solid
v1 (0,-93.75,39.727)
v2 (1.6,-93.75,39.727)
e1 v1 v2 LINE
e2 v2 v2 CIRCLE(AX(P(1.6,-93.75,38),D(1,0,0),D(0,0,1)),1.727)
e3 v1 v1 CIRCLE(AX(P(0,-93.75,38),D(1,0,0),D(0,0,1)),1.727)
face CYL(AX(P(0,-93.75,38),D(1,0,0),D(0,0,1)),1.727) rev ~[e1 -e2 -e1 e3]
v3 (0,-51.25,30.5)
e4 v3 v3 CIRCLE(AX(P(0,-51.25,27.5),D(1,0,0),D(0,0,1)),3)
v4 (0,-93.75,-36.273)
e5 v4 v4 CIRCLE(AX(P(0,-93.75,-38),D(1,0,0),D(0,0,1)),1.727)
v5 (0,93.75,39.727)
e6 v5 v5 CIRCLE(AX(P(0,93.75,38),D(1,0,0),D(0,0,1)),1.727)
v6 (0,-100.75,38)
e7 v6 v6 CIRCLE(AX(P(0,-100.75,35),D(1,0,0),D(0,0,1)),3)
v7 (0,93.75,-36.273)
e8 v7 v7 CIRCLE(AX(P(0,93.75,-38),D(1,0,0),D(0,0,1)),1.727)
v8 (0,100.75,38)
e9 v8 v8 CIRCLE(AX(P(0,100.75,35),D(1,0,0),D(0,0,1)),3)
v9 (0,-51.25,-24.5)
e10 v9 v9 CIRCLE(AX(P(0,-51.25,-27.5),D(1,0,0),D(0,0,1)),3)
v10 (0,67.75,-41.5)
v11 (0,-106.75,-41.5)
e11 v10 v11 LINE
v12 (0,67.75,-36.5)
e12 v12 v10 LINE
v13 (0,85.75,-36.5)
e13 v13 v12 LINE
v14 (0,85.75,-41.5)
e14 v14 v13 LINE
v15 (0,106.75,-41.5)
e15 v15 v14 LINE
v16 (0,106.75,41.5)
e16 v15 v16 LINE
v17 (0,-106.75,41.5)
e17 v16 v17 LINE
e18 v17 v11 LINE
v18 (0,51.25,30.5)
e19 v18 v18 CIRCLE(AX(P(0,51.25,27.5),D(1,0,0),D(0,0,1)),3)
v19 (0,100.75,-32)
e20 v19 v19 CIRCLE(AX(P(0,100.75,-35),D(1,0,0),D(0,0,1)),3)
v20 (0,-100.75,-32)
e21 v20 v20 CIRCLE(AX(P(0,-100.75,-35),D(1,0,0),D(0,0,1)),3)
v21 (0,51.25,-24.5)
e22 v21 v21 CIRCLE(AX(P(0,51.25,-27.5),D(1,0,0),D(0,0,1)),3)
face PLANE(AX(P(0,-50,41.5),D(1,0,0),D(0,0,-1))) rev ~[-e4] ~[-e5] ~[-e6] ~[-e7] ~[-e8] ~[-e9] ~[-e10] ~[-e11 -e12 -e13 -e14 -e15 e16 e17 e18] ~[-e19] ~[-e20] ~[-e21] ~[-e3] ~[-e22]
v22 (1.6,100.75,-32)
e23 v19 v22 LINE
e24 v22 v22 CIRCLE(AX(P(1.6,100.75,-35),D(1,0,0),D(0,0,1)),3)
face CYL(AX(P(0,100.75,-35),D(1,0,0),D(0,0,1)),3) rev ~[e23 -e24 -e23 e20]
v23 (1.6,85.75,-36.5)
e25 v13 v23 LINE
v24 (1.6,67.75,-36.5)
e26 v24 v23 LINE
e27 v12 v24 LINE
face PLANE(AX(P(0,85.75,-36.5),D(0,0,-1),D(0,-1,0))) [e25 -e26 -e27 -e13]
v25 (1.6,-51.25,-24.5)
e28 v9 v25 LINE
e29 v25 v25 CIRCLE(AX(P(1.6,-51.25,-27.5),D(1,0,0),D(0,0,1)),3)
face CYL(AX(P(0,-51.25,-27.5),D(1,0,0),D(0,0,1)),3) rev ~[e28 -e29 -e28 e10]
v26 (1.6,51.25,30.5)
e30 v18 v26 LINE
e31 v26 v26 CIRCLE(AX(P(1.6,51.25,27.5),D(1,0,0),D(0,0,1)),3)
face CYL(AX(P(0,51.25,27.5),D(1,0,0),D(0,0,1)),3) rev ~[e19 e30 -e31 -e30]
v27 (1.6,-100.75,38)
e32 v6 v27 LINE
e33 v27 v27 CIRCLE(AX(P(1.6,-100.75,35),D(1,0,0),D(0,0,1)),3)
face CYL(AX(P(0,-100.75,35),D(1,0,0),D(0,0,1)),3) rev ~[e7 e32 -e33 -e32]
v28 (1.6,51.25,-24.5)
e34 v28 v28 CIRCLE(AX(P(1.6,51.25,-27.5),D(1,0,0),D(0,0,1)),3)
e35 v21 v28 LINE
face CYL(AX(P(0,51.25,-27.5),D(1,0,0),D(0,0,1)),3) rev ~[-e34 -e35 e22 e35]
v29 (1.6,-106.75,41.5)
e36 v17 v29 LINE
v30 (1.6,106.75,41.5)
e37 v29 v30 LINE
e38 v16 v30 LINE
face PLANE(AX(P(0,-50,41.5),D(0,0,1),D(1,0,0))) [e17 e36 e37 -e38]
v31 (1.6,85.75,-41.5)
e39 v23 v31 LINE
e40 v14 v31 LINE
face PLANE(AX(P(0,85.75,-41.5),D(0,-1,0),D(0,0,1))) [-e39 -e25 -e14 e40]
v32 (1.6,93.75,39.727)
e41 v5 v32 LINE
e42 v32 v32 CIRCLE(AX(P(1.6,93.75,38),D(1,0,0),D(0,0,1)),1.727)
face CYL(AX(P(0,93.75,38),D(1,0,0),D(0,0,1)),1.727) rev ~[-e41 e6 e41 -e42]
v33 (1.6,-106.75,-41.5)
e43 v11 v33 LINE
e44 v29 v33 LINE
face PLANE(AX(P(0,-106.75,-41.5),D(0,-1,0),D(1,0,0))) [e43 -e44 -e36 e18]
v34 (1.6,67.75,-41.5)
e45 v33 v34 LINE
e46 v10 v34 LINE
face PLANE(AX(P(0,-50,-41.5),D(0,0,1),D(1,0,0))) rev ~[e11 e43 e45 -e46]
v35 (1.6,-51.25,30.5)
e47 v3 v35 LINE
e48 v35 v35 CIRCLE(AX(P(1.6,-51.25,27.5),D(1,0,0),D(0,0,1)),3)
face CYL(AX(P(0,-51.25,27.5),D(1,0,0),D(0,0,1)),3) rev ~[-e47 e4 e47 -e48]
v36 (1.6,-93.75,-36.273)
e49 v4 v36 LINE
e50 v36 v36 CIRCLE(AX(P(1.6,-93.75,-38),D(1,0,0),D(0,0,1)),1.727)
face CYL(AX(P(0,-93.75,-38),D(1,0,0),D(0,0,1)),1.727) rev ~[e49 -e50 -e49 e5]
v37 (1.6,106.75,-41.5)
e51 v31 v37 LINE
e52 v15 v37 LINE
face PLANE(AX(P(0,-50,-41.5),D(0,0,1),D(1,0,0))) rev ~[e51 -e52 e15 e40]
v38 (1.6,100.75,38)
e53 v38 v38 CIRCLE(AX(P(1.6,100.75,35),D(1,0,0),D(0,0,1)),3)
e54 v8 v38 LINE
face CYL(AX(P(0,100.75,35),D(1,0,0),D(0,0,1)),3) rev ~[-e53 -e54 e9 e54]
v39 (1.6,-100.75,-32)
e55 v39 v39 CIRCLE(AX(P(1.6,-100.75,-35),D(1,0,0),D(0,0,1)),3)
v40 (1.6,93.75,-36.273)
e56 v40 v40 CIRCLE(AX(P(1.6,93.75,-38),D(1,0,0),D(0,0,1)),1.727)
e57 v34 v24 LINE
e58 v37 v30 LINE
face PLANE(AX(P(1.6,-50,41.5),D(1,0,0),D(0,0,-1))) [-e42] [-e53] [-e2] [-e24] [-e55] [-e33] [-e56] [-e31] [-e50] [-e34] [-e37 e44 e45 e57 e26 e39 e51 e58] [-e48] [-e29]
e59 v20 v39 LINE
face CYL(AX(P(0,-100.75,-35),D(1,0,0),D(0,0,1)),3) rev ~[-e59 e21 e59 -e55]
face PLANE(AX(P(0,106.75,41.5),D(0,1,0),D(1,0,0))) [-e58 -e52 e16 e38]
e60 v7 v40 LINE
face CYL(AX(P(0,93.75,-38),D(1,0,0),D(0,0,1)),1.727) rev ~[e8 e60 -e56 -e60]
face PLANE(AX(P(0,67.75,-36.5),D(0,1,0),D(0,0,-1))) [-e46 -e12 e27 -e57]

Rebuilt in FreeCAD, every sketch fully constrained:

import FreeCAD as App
import Part
import Sketcher
Q = App.Units.Quantity


def add_polygon(sketch, points):
    """Adds a closed chain of lines whose ends are joined by coincident constraints."""
    first, n = sketch.GeometryCount, len(points)
    for a, b in zip(points, points[1:] + points[:1]):
        sketch.addGeometry(Part.LineSegment(App.Vector(*a, 0), App.Vector(*b, 0)), False)
    for i in range(n):
        sketch.addConstraint(Sketcher.Constraint("Coincident", first + i, 2, first + (i + 1) % n, 1))

doc = App.newDocument("Part")
params = doc.addObject("Spreadsheet::Sheet", "Params")
for row, (alias, value) in enumerate([
    ("sketch1_width", "100 mm"),
    ("sketch1_height", "83 mm"),
    ("pad1_length", "1.6 mm"),
    ("sketch2_height", "83 mm"),
    ("sketch2_width", "1.6 mm"),
    ("pad2_length", "56.75 mm"),
    ("sketch3_height", "83 mm"),
    ("sketch3_width", "1.6 mm"),
    ("pad3_length", "56.75 mm"),
    ("sketch4_diameter", "6 mm"),
    ("hole_diameter", "6 mm"),
    ("sketch5_diameter", "6 mm"),
    ("hole2_diameter", "6 mm"),
    ("sketch6_diameter", "2.6 mm"),
    ("hole3_diameter", "2.6 mm"),
    ("sketch7_width", "18 mm"),
    ("sketch7_height", "5 mm"),
    ("hole4_diameter", "3.454 mm"),
], start=1):
    params.set(f"A{row}", alias)
    params.set(f"B{row}", "=" + value)
    params.setAlias(f"B{row}", alias)

body = doc.addObject("PartDesign::Body", "Body")

sketch1 = body.newObject("Sketcher::SketchObject", "Sketch")
sketch1.AttachmentSupport = (doc.getObject("YZ_Plane"), [""])
sketch1.MapMode = "FlatFace"
add_polygon(sketch1, [(50, -42), (50, 42), (-50, 42), (-50, -42)])
sketch1.addConstraint(Sketcher.Constraint("Vertical", 0))
sketch1.addConstraint(Sketcher.Constraint("Horizontal", 1))
sketch1.addConstraint(Sketcher.Constraint("Vertical", 2))
sketch1.addConstraint(Sketcher.Constraint("Horizontal", 3))
sketch1.addConstraint(Sketcher.Constraint("Symmetric", 0, 2, 2, 2, -1, 1))
sketch1.addConstraint(Sketcher.Constraint("DistanceX", 1, 2, 1, 1, Q("100 mm")))
sketch1.addConstraint(Sketcher.Constraint("DistanceY", 0, 1, 0, 2, Q("83 mm")))
sketch1.setExpression("Constraints[9]", "Params.sketch1_width")
sketch1.setExpression("Constraints[10]", "Params.sketch1_height")
pad1 = body.newObject("PartDesign::Pad", "Pad")
pad1.Profile = sketch1
pad1.setExpression("Length", "Params.pad1_length")

sketch2 = body.newObject("Sketcher::SketchObject", "Sketch001")
sketch2.AttachmentSupport = (doc.getObject("XZ_Plane"), [""])
sketch2.MapMode = "FlatFace"
sketch2.AttachmentOffset = App.Placement(App.Vector(0, 0, -50), App.Rotation())
add_polygon(sketch2, [(1.6, -41.5), (0, -41.5), (0, 41.5), (1.6, 41.5)])
sketch2.addConstraint(Sketcher.Constraint("Horizontal", 0))
sketch2.addConstraint(Sketcher.Constraint("Vertical", 1))
sketch2.addConstraint(Sketcher.Constraint("Horizontal", 2))
sketch2.addConstraint(Sketcher.Constraint("Vertical", 3))
sketch2.addConstraint(Sketcher.Constraint("Symmetric", 0, 2, 1, 2, -1, 1))
sketch2.addConstraint(Sketcher.Constraint("DistanceY", 1, 1, 1, 2, Q("83 mm")))
sketch2.addConstraint(Sketcher.Constraint("DistanceX", 0, 2, 0, 1, Q("1.6 mm")))
sketch2.setExpression("Constraints[9]", "Params.sketch2_height")
sketch2.setExpression("Constraints[10]", "Params.sketch2_width")
pad2 = body.newObject("PartDesign::Pad", "Pad001")
pad2.Profile = sketch2
pad2.setExpression("Length", "Params.pad2_length")
pad2.Reversed = True

sketch3 = body.newObject("Sketcher::SketchObject", "Sketch002")
sketch3.AttachmentSupport = (doc.getObject("XZ_Plane"), [""])
sketch3.MapMode = "FlatFace"
sketch3.AttachmentOffset = App.Placement(App.Vector(0, 0, 50), App.Rotation())
add_polygon(sketch3, [(1.6, 41.5), (0, 41.5), (0, -41.5), (1.6, -41.5)])
sketch3.addConstraint(Sketcher.Constraint("Horizontal", 0))
sketch3.addConstraint(Sketcher.Constraint("Vertical", 1))
sketch3.addConstraint(Sketcher.Constraint("Horizontal", 2))
sketch3.addConstraint(Sketcher.Constraint("Vertical", 3))
sketch3.addConstraint(Sketcher.Constraint("Symmetric", 0, 2, 1, 2, -1, 1))
sketch3.addConstraint(Sketcher.Constraint("DistanceY", 1, 2, 1, 1, Q("83 mm")))
sketch3.addConstraint(Sketcher.Constraint("DistanceX", 0, 2, 0, 1, Q("1.6 mm")))
sketch3.setExpression("Constraints[9]", "Params.sketch3_height")
sketch3.setExpression("Constraints[10]", "Params.sketch3_width")
pad3 = body.newObject("PartDesign::Pad", "Pad002")
pad3.Profile = sketch3
pad3.setExpression("Length", "Params.pad3_length")

sketch4 = body.newObject("Sketcher::SketchObject", "Sketch003")
sketch4.AttachmentSupport = (doc.getObject("YZ_Plane"), [""])
sketch4.MapMode = "FlatFace"
sketch4.addGeometry(Part.Circle(App.Vector(-51.2, 27.5, 0), App.Vector(0, 0, 1), 3), False)
sketch4.addGeometry(Part.Circle(App.Vector(51.2, 27.5, 0), App.Vector(0, 0, 1), 3), False)
sketch4.addGeometry(Part.Circle(App.Vector(-51.2, -27.5, 0), App.Vector(0, 0, 1), 3), False)
sketch4.addGeometry(Part.Circle(App.Vector(51.2, -27.5, 0), App.Vector(0, 0, 1), 3), False)
sketch4.addConstraint(Sketcher.Constraint("Equal", 0, 1))
sketch4.addConstraint(Sketcher.Constraint("Equal", 1, 2))
sketch4.addConstraint(Sketcher.Constraint("Equal", 2, 3))
sketch4.addConstraint(Sketcher.Constraint("Symmetric", 1, 3, 2, 3, -1, 1))
sketch4.addConstraint(Sketcher.Constraint("Symmetric", 0, 3, 3, 3, -1, 1))
sketch4.addConstraint(Sketcher.Constraint("Symmetric", 0, 3, 1, 3, -2))
sketch4.addConstraint(Sketcher.Constraint("Diameter", 0, Q("6 mm")))
sketch4.addConstraint(Sketcher.Constraint("DistanceY", 2, 3, 0, 3, Q("55 mm")))
sketch4.addConstraint(Sketcher.Constraint("DistanceX", 0, 3, 1, 3, Q("102.5 mm")))
sketch4.setExpression("Constraints[6]", "Params.sketch4_diameter")
doc.recompute()
hole = body.newObject("PartDesign::Hole", "Hole")
hole.Profile = sketch4
hole.ThreadType = "None"
hole.setExpression("Diameter", "Params.hole_diameter")
hole.DepthType = "ThroughAll"
hole.Reversed = True

sketch5 = body.newObject("Sketcher::SketchObject", "Sketch004")
sketch5.AttachmentSupport = (doc.getObject("YZ_Plane"), [""])
sketch5.MapMode = "FlatFace"
sketch5.addGeometry(Part.Circle(App.Vector(-100.8, 35, 0), App.Vector(0, 0, 1), 3), False)
sketch5.addGeometry(Part.Circle(App.Vector(-100.8, -35, 0), App.Vector(0, 0, 1), 3), False)
sketch5.addGeometry(Part.Circle(App.Vector(100.8, 35, 0), App.Vector(0, 0, 1), 3), False)
sketch5.addGeometry(Part.Circle(App.Vector(100.8, -35, 0), App.Vector(0, 0, 1), 3), False)
sketch5.addConstraint(Sketcher.Constraint("Equal", 0, 1))
sketch5.addConstraint(Sketcher.Constraint("Equal", 1, 2))
sketch5.addConstraint(Sketcher.Constraint("Equal", 2, 3))
sketch5.addConstraint(Sketcher.Constraint("Symmetric", 1, 3, 2, 3, -1, 1))
sketch5.addConstraint(Sketcher.Constraint("Symmetric", 0, 3, 3, 3, -1, 1))
sketch5.addConstraint(Sketcher.Constraint("Symmetric", 0, 3, 2, 3, -2))
sketch5.addConstraint(Sketcher.Constraint("Diameter", 0, Q("6 mm")))
sketch5.addConstraint(Sketcher.Constraint("DistanceY", -1, 1, 0, 3, Q("35 mm")))
sketch5.addConstraint(Sketcher.Constraint("DistanceX", 0, 3, 2, 3, Q("201.5 mm")))
sketch5.setExpression("Constraints[6]", "Params.sketch5_diameter")
doc.recompute()
hole2 = body.newObject("PartDesign::Hole", "Hole001")
hole2.Profile = sketch5
hole2.ThreadType = "None"
hole2.setExpression("Diameter", "Params.hole2_diameter")
hole2.DepthType = "ThroughAll"
hole2.Reversed = True

sketch6 = body.newObject("Sketcher::SketchObject", "Sketch005")
sketch6.AttachmentSupport = (doc.getObject("YZ_Plane"), [""])
sketch6.MapMode = "FlatFace"
sketch6.addGeometry(Part.Circle(App.Vector(72, -39, 0), App.Vector(0, 0, 1), 1.3), False)
sketch6.addGeometry(Part.Circle(App.Vector(81.5, -39, 0), App.Vector(0, 0, 1), 1.3), False)
sketch6.addConstraint(Sketcher.Constraint("Equal", 0, 1))
sketch6.addConstraint(Sketcher.Constraint("Horizontal", 0, 3, 1, 3))
sketch6.addConstraint(Sketcher.Constraint("Diameter", 0, Q("2.6 mm")))
sketch6.addConstraint(Sketcher.Constraint("DistanceX", -1, 1, 0, 3, Q("72 mm")))
sketch6.addConstraint(Sketcher.Constraint("DistanceY", 0, 3, -1, 1, Q("39 mm")))
sketch6.addConstraint(Sketcher.Constraint("DistanceX", -1, 1, 1, 3, Q("81.5 mm")))
sketch6.setExpression("Constraints[2]", "Params.sketch6_diameter")
doc.recompute()
hole3 = body.newObject("PartDesign::Hole", "Hole002")
hole3.Profile = sketch6
hole3.ThreadType = "None"
hole3.setExpression("Diameter", "Params.hole3_diameter")
hole3.DepthType = "ThroughAll"
hole3.Reversed = True

sketch7 = body.newObject("Sketcher::SketchObject", "Sketch006")
sketch7.AttachmentSupport = (doc.getObject("YZ_Plane"), [""])
sketch7.MapMode = "FlatFace"
add_polygon(sketch7, [(86, -36), (86, -42), (68, -42), (68, -36)])
sketch7.addConstraint(Sketcher.Constraint("Vertical", 0))
sketch7.addConstraint(Sketcher.Constraint("Horizontal", 1))
sketch7.addConstraint(Sketcher.Constraint("Vertical", 2))
sketch7.addConstraint(Sketcher.Constraint("Horizontal", 3))
sketch7.addConstraint(Sketcher.Constraint("DistanceX", 1, 2, 1, 1, Q("18 mm")))
sketch7.addConstraint(Sketcher.Constraint("DistanceY", 0, 2, 0, 1, Q("5 mm")))
sketch7.addConstraint(Sketcher.Constraint("DistanceY", 0, 2, -1, 1, Q("41.5 mm")))
sketch7.addConstraint(Sketcher.Constraint("DistanceX", -1, 1, 0, 2, Q("85.75 mm")))
sketch7.setExpression("Constraints[8]", "Params.sketch7_width")
sketch7.setExpression("Constraints[9]", "Params.sketch7_height")
pocket1 = body.newObject("PartDesign::Pocket", "Pocket")
pocket1.Profile = sketch7
pocket1.Type = "ThroughAll"
pocket1.Reversed = True

sketch8 = body.newObject("Sketcher::SketchObject", "Sketch007")
sketch8.AttachmentSupport = (doc.getObject("YZ_Plane"), [""])
sketch8.MapMode = "FlatFace"
sketch8.addGeometry(Part.Circle(App.Vector(93.8, 38, 0), App.Vector(0, 0, 1), 1.7), False)
sketch8.addGeometry(Part.Circle(App.Vector(93.8, -38, 0), App.Vector(0, 0, 1), 1.7), False)
sketch8.addGeometry(Part.Circle(App.Vector(-93.8, 38, 0), App.Vector(0, 0, 1), 1.7), False)
sketch8.addGeometry(Part.Circle(App.Vector(-93.8, -38, 0), App.Vector(0, 0, 1), 1.7), False)
sketch8.addConstraint(Sketcher.Constraint("Equal", 0, 1))
sketch8.addConstraint(Sketcher.Constraint("Equal", 1, 2))
sketch8.addConstraint(Sketcher.Constraint("Equal", 2, 3))
sketch8.addConstraint(Sketcher.Constraint("Symmetric", 1, 3, 2, 3, -1, 1))
sketch8.addConstraint(Sketcher.Constraint("Symmetric", 0, 3, 3, 3, -1, 1))
sketch8.addConstraint(Sketcher.Constraint("Symmetric", 0, 3, 2, 3, -2))
sketch8.addConstraint(Sketcher.Constraint("Diameter", 0, Q("3.454 mm")))
sketch8.addConstraint(Sketcher.Constraint("DistanceY", -1, 1, 0, 3, Q("38 mm")))
sketch8.addConstraint(Sketcher.Constraint("DistanceX", 2, 3, 0, 3, Q("187.5 mm")))
doc.recompute()
hole4 = body.newObject("PartDesign::Hole", "Hole003")
hole4.Profile = sketch8
hole4.ThreadType = "None"
hole4.setExpression("Diameter", "Params.hole4_diameter")
hole4.DepthType = "ThroughAll"
hole4.Reversed = True

doc.recompute()
